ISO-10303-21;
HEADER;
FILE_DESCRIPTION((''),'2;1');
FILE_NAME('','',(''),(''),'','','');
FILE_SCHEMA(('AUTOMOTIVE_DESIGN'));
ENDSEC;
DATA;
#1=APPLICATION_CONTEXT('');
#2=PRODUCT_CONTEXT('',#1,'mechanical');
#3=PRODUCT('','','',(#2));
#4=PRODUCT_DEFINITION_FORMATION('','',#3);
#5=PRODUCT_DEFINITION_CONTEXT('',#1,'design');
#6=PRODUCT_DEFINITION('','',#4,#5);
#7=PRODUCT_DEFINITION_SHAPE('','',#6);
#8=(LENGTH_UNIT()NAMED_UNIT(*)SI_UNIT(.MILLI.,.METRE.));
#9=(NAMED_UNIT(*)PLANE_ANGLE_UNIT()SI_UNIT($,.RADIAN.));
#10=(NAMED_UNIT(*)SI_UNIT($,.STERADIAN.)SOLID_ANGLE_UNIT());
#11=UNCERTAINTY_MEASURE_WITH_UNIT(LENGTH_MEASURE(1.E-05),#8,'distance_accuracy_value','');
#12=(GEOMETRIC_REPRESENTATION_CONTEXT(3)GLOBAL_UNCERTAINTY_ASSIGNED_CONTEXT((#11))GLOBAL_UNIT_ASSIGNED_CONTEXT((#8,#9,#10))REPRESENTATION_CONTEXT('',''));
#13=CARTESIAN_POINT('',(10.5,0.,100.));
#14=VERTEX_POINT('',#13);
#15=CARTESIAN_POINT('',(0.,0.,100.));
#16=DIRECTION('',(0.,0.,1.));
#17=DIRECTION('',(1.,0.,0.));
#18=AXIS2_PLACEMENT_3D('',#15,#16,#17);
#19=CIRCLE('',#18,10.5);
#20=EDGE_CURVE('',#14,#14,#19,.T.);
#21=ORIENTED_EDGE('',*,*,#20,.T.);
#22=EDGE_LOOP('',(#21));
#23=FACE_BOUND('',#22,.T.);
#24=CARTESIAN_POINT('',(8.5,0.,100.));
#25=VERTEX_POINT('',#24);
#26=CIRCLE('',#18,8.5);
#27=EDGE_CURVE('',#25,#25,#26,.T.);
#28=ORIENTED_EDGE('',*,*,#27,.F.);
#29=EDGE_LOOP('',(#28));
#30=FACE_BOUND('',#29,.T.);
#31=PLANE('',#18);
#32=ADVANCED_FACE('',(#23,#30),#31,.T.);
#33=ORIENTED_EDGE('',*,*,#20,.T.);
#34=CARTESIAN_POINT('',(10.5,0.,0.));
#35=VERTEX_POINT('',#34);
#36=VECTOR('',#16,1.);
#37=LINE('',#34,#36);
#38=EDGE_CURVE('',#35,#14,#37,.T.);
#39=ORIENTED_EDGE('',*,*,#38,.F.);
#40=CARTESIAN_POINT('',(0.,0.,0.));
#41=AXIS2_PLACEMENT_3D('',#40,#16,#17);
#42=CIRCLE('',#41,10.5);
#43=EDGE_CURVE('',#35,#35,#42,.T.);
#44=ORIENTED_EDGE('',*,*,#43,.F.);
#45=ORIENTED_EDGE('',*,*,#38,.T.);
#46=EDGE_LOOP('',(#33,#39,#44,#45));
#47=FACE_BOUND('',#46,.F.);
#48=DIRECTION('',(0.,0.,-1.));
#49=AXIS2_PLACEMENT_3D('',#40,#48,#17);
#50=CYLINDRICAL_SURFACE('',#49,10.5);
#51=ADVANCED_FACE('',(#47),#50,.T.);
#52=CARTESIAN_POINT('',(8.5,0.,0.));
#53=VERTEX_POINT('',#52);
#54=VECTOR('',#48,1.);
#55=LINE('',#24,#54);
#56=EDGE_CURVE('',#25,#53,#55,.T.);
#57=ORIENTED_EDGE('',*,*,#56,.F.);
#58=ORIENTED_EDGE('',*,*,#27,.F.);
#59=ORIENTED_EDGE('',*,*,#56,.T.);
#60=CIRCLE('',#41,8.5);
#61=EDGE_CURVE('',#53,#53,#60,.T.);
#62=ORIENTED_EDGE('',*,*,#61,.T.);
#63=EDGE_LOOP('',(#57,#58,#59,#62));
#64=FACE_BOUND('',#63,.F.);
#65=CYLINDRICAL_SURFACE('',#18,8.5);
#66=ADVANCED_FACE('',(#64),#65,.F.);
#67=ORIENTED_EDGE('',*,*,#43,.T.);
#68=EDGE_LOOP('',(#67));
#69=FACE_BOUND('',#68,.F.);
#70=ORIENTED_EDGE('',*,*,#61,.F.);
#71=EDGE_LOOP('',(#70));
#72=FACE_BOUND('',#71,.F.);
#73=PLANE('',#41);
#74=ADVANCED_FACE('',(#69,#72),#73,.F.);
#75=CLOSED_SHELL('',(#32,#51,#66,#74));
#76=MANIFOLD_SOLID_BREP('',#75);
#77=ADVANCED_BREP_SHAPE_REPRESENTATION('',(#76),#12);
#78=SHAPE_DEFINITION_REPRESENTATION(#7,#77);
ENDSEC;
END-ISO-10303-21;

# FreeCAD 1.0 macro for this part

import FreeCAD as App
import Part
import Sketcher
from FreeCAD import Vector
Q = App.Units.Quantity

doc = App.newDocument("Part")
body = doc.addObject("PartDesign::Body", "Body")

# Sketch on XY plane
sketch1 = doc.addObject("Sketcher::SketchObject", "Sketch")
body.addObject(sketch1)
sketch1.AttachmentSupport = (doc.XY_Plane, [""])
sketch1.MapMode = "FlatFace"
sketch1.addGeometry(Part.Circle(Vector(0, 0, 0), Vector(0, 0, 1), 10), False)
sketch1.addConstraint([
    Sketcher.Constraint("Coincident", 0, 3, -1, 1),
    Sketcher.Constraint("Diameter", 0, Q("21 mm")),
])
pad1 = doc.addObject("PartDesign::Pad", "Pad")
body.addObject(pad1)
pad1.Profile = sketch1
pad1.Length = 100

# Sketch on XY plane
sketch2 = doc.addObject("Sketcher::SketchObject", "Sketch001")
body.addObject(sketch2)
sketch2.AttachmentSupport = (doc.XY_Plane, [""])
sketch2.MapMode = "FlatFace"
sketch2.AttachmentOffset = App.Placement(Vector(0, 0, 100), App.Rotation())
sketch2.addGeometry(Part.Circle(Vector(0, 0, 0), Vector(0, 0, 1), 8), False)
sketch2.addConstraint([
    Sketcher.Constraint("Coincident", 0, 3, -1, 1),
    Sketcher.Constraint("Diameter", 0, Q("17 mm")),
])
pocket1 = doc.addObject("PartDesign::Pocket", "Pocket")
body.addObject(pocket1)
pocket1.Profile = sketch2
pocket1.Type = "ThroughAll"

doc.recompute()
